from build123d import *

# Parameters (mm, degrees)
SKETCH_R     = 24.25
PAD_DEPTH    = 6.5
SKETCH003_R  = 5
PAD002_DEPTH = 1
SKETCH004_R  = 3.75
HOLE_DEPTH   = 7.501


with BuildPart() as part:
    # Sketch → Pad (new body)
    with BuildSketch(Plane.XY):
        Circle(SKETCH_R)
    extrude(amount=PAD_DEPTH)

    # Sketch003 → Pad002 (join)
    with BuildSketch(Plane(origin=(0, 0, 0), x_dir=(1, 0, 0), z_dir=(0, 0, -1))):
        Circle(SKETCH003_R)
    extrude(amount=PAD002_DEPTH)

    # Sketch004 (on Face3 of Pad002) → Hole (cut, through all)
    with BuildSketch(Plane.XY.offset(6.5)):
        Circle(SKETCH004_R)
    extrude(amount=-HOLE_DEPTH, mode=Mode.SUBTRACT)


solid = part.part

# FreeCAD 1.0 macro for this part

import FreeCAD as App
import Part
import Sketcher

V = App.Vector

doc = App.newDocument("Part")
body = doc.addObject("PartDesign::Body", "Body")

# Sketch on XY plane
sketch1 = body.newObject("Sketcher::SketchObject", "Sketch")
sketch1.AttachmentSupport = (doc.getObject("XY_Plane"), [""])
sketch1.MapMode = "FlatFace"
sketch1.addGeometry(Part.Circle(V(0, 0, 0), V(0, 0, 1), 24.25), False)
sketch1.addConstraint(Sketcher.Constraint("Coincident", 0, 3, -1, 1))
sketch1.addConstraint(Sketcher.Constraint("Diameter", 0, 48.5))
pad1 = body.newObject("PartDesign::Pad", "Pad")
pad1.Profile = sketch1
pad1.Length = 6.5

# Sketch on XY plane
sketch2 = body.newObject("Sketcher::SketchObject", "Sketch001")
sketch2.AttachmentSupport = (doc.getObject("XY_Plane"), [""])
sketch2.MapMode = "FlatFace"
sketch2.addGeometry(Part.Circle(V(0, 0, 0), V(0, 0, 1), 5), False)
sketch2.addConstraint(Sketcher.Constraint("Coincident", 0, 3, -1, 1))
sketch2.addConstraint(Sketcher.Constraint("Diameter", 0, 10.0))
pad2 = body.newObject("PartDesign::Pad", "Pad001")
pad2.Profile = sketch2
pad2.Length = 1
pad2.Reversed = True

# Sketch on XY plane
sketch3 = body.newObject("Sketcher::SketchObject", "Sketch002")
sketch3.AttachmentSupport = (doc.getObject("XY_Plane"), [""])
sketch3.MapMode = "FlatFace"
sketch3.AttachmentOffset = App.Placement(V(0, 0, 6.5), App.Rotation())
sketch3.addGeometry(Part.Circle(V(0, 0, 0), V(0, 0, 1), 3.75), False)
sketch3.addConstraint(Sketcher.Constraint("Coincident", 0, 3, -1, 1))
sketch3.addConstraint(Sketcher.Constraint("Diameter", 0, 7.5))
pocket1 = body.newObject("PartDesign::Pocket", "Pocket")
pocket1.Profile = sketch3
pocket1.Type = "ThroughAll"

doc.recompute()
